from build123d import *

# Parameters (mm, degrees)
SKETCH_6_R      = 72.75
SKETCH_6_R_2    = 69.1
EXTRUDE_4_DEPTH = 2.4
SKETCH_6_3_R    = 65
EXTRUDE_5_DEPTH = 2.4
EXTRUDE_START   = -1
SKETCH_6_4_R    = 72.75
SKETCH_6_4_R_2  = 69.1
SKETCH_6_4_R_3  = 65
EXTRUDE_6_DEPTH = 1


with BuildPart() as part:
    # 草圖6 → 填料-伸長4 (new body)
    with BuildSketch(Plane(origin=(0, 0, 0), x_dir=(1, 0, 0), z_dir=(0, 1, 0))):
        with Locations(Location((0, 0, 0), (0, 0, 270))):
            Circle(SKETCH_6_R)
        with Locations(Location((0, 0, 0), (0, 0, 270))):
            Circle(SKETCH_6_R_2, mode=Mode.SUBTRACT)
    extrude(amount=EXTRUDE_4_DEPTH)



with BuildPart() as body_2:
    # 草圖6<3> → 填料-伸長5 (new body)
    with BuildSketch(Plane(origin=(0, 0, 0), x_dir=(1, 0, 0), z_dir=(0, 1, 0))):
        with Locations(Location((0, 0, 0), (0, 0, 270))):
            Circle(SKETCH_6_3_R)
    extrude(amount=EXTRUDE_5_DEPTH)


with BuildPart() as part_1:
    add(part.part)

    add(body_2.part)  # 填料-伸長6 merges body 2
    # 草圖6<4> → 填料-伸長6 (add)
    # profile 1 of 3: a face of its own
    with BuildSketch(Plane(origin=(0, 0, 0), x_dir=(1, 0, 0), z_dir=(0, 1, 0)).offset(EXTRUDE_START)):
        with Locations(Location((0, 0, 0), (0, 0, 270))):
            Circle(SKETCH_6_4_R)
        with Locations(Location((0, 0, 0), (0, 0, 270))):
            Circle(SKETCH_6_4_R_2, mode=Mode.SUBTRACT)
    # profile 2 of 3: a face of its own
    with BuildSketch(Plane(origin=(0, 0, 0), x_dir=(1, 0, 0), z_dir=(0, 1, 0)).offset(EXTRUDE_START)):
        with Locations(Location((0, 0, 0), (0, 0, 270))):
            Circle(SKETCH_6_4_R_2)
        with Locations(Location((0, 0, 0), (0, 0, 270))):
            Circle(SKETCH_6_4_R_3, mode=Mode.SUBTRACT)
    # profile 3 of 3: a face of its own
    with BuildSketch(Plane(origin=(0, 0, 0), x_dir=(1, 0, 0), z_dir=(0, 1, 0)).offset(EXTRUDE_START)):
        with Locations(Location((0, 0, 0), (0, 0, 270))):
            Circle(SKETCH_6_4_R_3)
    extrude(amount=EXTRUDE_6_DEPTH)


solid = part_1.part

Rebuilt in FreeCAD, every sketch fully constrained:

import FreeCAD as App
import Part
import Sketcher

doc = App.newDocument("Part")
body = doc.addObject("PartDesign::Body", "Body")

sketch1 = doc.addObject("Sketcher::SketchObject", "Sketch")
body.addObject(sketch1)
sketch1.AttachmentSupport = (doc.XZ_Plane, [""])
sketch1.MapMode = "FlatFace"
sketch1.addGeometry([
    Part.Circle(App.Vector(0, 0, 0), App.Vector(0, 0, 1), 73),
    Part.Circle(App.Vector(0, 0, 0), App.Vector(0, 0, 1), 69),
], False)
sketch1.addConstraint([
    Sketcher.Constraint("Coincident", 0, 3, -1, 1),
    Sketcher.Constraint("Coincident", 1, 3, -1, 1),
    Sketcher.Constraint("Diameter", 0, 145.5),
    Sketcher.Constraint("Diameter", 1, 138.2),
])
pad1 = doc.addObject("PartDesign::Pad", "Pad")
body.addObject(pad1)
pad1.Profile = sketch1
pad1.Length = 2.4
pad1.Reversed = True
body2 = doc.addObject("PartDesign::Body", "Body001")

sketch2 = doc.addObject("Sketcher::SketchObject", "Sketch001")
body2.addObject(sketch2)
sketch2.AttachmentSupport = (doc.getObject("XZ_Plane001"), [""])
sketch2.MapMode = "FlatFace"
sketch2.addGeometry(Part.Circle(App.Vector(0, 0, 0), App.Vector(0, 0, 1), 65), False)
sketch2.addConstraint([
    Sketcher.Constraint("Coincident", 0, 3, -1, 1),
    Sketcher.Constraint("Diameter", 0, 130.0),
])
pad2 = doc.addObject("PartDesign::Pad", "Pad001")
body2.addObject(pad2)
pad2.Profile = sketch2
pad2.Length = 2.4
pad2.Reversed = True
body.AllowCompound = True
doc.recompute()

boolean = doc.addObject("PartDesign::Boolean", "Boolean")
body.addObject(boolean)
boolean.Type = "Fuse"
boolean.addObjects([body2])

sketch3 = doc.addObject("Sketcher::SketchObject", "Sketch002")
body.addObject(sketch3)
sketch3.AttachmentSupport = (doc.XZ_Plane, [""])
sketch3.MapMode = "FlatFace"
sketch3.AttachmentOffset = App.Placement(App.Vector(0, 0, 1), App.Rotation())
sketch3.addGeometry(Part.Circle(App.Vector(0, 0, 0), App.Vector(0, 0, 1), 73), False)
sketch3.addConstraint([
    Sketcher.Constraint("Coincident", 0, 3, -1, 1),
    Sketcher.Constraint("Diameter", 0, 145.5),
])
pad3 = doc.addObject("PartDesign::Pad", "Pad002")
body.addObject(pad3)
pad3.Profile = sketch3
pad3.Length = 1
pad3.Reversed = True

doc.recompute()
